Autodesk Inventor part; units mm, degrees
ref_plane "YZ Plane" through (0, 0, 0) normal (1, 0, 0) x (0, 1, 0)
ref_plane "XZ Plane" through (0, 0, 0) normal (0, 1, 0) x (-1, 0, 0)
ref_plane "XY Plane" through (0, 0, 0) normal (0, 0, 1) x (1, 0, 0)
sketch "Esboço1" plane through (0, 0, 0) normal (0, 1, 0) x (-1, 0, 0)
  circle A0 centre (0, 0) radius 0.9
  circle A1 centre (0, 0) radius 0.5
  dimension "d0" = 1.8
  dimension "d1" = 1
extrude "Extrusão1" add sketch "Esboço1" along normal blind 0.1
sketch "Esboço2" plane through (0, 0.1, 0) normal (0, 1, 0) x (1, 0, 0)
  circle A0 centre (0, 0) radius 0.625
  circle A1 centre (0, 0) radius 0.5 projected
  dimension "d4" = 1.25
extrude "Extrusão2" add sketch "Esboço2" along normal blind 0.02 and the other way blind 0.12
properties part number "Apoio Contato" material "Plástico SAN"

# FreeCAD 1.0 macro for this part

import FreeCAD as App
import Part
import Sketcher

V = App.Vector
Q = App.Units.Quantity

doc = App.newDocument("Part")
body = doc.addObject("PartDesign::Body", "Body")

# Sketch on XZ plane
sketch1 = body.newObject("Sketcher::SketchObject", "Sketch")
sketch1.AttachmentSupport = (doc.getObject("XZ_Plane"), [""])
sketch1.MapMode = "FlatFace"
sketch1.addGeometry(Part.Circle(V(0, 0, 0), V(0, 0, 1), 0.9), False)
sketch1.addGeometry(Part.Circle(V(0, 0, 0), V(0, 0, 1), 0.5), False)
sketch1.addConstraint(Sketcher.Constraint("Coincident", 0, 3, -1, 1))
sketch1.addConstraint(Sketcher.Constraint("Coincident", 1, 3, -1, 1))
sketch1.addConstraint(Sketcher.Constraint("Diameter", 1, Q("1 mm")))
sketch1.addConstraint(Sketcher.Constraint("Diameter", 0, Q("1.8 mm")))
pad1 = body.newObject("PartDesign::Pad", "Pad")
pad1.Profile = sketch1
pad1.Length = 0.1
pad1.Reversed = True

# Sketch on XZ plane
sketch2 = body.newObject("Sketcher::SketchObject", "Sketch001")
sketch2.AttachmentSupport = (doc.getObject("XZ_Plane"), [""])
sketch2.MapMode = "FlatFace"
sketch2.AttachmentOffset = App.Placement(V(0, 0, -0.1), App.Rotation())
sketch2.addGeometry(Part.Circle(V(0, 0, 0), V(0, 0, 1), 0.6), False)
sketch2.addGeometry(Part.Circle(V(0, 0, 0), V(0, 0, 1), 0.5), False)
sketch2.addConstraint(Sketcher.Constraint("Coincident", 0, 3, -1, 1))
sketch2.addConstraint(Sketcher.Constraint("Coincident", 1, 3, -1, 1))
sketch2.addConstraint(Sketcher.Constraint("Diameter", 0, Q("1.25 mm")))
sketch2.addConstraint(Sketcher.Constraint("Diameter", 1, Q("1 mm")))
pad2 = body.newObject("PartDesign::Pad", "Pad001")
pad2.Profile = sketch2
pad2.Type = "TwoLengths"
pad2.Length = 0.02
pad2.Length2 = 0.12
pad2.Reversed = True

doc.recompute()
